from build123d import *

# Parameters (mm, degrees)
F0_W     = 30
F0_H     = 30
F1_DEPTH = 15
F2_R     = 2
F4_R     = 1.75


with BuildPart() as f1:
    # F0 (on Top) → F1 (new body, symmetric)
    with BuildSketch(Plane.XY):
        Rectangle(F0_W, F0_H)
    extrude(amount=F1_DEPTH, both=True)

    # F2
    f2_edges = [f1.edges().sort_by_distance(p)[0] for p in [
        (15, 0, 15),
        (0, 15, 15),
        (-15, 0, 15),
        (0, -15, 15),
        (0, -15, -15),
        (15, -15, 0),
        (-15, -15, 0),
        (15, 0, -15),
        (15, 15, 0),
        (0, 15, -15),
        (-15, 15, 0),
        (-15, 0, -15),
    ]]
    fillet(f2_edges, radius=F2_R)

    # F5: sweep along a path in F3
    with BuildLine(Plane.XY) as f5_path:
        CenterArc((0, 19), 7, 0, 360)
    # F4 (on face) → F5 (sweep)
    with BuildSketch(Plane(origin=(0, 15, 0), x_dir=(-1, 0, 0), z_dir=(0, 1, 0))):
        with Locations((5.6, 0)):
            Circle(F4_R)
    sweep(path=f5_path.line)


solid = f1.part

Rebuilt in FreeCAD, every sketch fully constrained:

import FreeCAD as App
import Part
import Sketcher

V = App.Vector
Q = App.Units.Quantity

doc = App.newDocument("Part")
params = doc.addObject("Spreadsheet::Sheet", "Params")
for row, (alias, value) in enumerate([
    ("sketch1_width", "30 mm"),
    ("pad1_length", "30 mm"),
    ("fillet_radius", "2 mm"),
    ("sketch2_diameter", "3.5 mm"),
    ("sketch3_diameter", "14 mm"),
], start=1):
    params.set(f"A{row}", alias)
    params.set(f"B{row}", "=" + value)
    params.setAlias(f"B{row}", alias)

body = doc.addObject("PartDesign::Body", "Body")

sketch1 = body.newObject("Sketcher::SketchObject", "Sketch")
sketch1.AttachmentSupport = (doc.getObject("XY_Plane"), [""])
sketch1.MapMode = "FlatFace"
sketch1.addGeometry(Part.LineSegment(V(-15, 15, 0), V(-15, -15, 0)), False)
sketch1.addGeometry(Part.LineSegment(V(-15, -15, 0), V(15, -15, 0)), False)
sketch1.addGeometry(Part.LineSegment(V(15, -15, 0), V(15, 15, 0)), False)
sketch1.addGeometry(Part.LineSegment(V(15, 15, 0), V(-15, 15, 0)), False)
sketch1.addConstraint(Sketcher.Constraint("Coincident", 0, 2, 1, 1))
sketch1.addConstraint(Sketcher.Constraint("Coincident", 1, 2, 2, 1))
sketch1.addConstraint(Sketcher.Constraint("Coincident", 2, 2, 3, 1))
sketch1.addConstraint(Sketcher.Constraint("Coincident", 3, 2, 0, 1))
sketch1.addConstraint(Sketcher.Constraint("Vertical", 0))
sketch1.addConstraint(Sketcher.Constraint("Horizontal", 1))
sketch1.addConstraint(Sketcher.Constraint("Vertical", 2))
sketch1.addConstraint(Sketcher.Constraint("Horizontal", 3))
sketch1.addConstraint(Sketcher.Constraint("Symmetric", 0, 2, 2, 2, -1, 1))
sketch1.addConstraint(Sketcher.Constraint("Equal", 3, 0))
sketch1.addConstraint(Sketcher.Constraint("DistanceX", 1, 1, 1, 2, Q("30 mm")))
sketch1.setExpression("Constraints[10]", "Params.sketch1_width")
pad1 = body.newObject("PartDesign::Pad", "Pad")
pad1.Profile = sketch1
pad1.setExpression("Length", "Params.pad1_length")
pad1.Midplane = True
doc.recompute()

fillet = body.newObject("PartDesign::Fillet", "Fillet")
fillet.Base = (pad1, ["Edge1"])
fillet.UseAllEdges = True
fillet.setExpression("Radius", "Params.fillet_radius")

sketch2 = body.newObject("Sketcher::SketchObject", "Sketch001")
sketch2.AttachmentSupport = (doc.getObject("XZ_Plane"), [""])
sketch2.MapMode = "FlatFace"
sketch2.AttachmentOffset = App.Placement(V(0, 0, -15), App.Rotation())
sketch2.addGeometry(Part.Circle(V(-5.6, 0, 0), V(0, 0, 1), 1.75), False)
sketch2.addConstraint(Sketcher.Constraint("PointOnObject", 0, 3, -1))
sketch2.addConstraint(Sketcher.Constraint("Diameter", 0, Q("3.5 mm")))
sketch2.addConstraint(Sketcher.Constraint("DistanceX", 0, 3, -1, 1, Q("5.6 mm")))
sketch2.setExpression("Constraints[1]", "Params.sketch2_diameter")

sketch3 = body.newObject("Sketcher::SketchObject", "Sketch002")
sketch3.AttachmentSupport = (doc.getObject("XY_Plane"), [""])
sketch3.MapMode = "FlatFace"
sketch3.addGeometry(Part.Circle(V(0, 19, 0), V(0, 0, 1), 7), False)
sketch3.addConstraint(Sketcher.Constraint("PointOnObject", 0, 3, -2))
sketch3.addConstraint(Sketcher.Constraint("Diameter", 0, Q("14 mm")))
sketch3.addConstraint(Sketcher.Constraint("DistanceY", -1, 1, 0, 3, Q("19 mm")))
sketch3.setExpression("Constraints[1]", "Params.sketch3_diameter")
doc.recompute()

additivepipe = body.newObject("PartDesign::AdditivePipe", "AdditivePipe")
additivepipe.Profile = sketch2
additivepipe.Spine = (sketch3, ["Edge1"])

doc.recompute()
